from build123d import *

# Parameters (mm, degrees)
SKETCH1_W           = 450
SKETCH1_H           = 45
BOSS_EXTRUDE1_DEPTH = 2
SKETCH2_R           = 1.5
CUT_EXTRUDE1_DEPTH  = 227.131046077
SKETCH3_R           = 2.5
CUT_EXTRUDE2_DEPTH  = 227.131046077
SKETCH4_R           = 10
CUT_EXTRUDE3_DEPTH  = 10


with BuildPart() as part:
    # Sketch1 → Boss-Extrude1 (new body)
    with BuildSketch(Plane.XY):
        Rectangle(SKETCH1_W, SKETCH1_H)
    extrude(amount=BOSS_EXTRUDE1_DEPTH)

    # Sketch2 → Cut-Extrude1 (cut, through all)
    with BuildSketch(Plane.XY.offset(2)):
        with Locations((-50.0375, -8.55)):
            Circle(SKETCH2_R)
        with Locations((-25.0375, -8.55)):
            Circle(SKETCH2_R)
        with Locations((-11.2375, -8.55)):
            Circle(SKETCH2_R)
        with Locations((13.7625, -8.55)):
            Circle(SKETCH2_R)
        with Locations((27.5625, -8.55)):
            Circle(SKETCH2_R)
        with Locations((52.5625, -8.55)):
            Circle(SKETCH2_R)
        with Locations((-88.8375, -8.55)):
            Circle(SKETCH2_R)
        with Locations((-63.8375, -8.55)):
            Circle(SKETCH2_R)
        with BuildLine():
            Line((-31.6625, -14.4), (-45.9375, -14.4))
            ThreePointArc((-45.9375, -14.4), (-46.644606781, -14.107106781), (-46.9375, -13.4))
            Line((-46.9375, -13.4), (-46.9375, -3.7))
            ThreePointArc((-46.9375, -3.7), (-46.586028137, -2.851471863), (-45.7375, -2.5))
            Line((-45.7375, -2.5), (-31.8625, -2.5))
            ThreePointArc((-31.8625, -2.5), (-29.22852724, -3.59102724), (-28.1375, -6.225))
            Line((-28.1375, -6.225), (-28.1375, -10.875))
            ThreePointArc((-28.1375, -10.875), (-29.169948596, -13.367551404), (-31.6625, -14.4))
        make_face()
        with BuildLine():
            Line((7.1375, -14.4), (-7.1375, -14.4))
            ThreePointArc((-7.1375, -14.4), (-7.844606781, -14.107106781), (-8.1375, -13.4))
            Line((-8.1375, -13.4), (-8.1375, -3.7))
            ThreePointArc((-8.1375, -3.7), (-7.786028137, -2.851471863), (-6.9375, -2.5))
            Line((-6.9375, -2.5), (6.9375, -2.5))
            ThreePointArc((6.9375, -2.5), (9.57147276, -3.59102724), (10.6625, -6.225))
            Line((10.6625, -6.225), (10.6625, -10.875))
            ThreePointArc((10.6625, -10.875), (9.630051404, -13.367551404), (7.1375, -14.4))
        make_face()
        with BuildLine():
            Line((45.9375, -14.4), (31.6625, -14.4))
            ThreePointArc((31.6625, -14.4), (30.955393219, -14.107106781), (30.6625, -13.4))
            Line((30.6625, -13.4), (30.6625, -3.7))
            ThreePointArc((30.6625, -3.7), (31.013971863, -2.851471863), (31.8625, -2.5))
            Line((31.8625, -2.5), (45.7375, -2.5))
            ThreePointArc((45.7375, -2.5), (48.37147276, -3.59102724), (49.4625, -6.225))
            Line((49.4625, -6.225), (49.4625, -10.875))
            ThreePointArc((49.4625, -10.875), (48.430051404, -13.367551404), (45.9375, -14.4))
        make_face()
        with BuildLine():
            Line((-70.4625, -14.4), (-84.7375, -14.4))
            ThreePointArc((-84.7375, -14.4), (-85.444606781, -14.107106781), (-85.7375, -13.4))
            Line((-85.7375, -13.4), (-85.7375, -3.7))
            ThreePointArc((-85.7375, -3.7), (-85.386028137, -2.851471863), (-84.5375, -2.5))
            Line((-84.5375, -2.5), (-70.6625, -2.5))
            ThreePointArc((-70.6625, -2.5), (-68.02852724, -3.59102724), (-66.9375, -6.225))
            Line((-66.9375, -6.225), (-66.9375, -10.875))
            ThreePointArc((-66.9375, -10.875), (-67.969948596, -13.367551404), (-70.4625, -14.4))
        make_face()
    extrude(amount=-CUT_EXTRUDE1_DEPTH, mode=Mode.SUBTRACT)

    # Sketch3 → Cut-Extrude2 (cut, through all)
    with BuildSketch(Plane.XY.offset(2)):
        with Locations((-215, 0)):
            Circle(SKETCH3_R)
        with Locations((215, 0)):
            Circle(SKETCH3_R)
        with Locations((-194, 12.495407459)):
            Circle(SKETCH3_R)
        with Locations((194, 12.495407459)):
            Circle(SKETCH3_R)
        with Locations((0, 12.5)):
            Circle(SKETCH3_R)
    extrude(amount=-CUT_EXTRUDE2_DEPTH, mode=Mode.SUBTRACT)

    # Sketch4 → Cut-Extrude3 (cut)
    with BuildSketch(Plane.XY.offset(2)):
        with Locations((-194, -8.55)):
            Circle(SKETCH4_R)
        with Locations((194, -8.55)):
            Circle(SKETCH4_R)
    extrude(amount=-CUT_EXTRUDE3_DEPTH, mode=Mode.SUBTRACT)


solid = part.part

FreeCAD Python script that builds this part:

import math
import FreeCAD as App
import Part
import Sketcher
from FreeCAD import Vector
Q = App.Units.Quantity


def add_polygon(sketch, points):
    """Adds a closed chain of lines whose ends are joined by coincident constraints."""
    first, n = sketch.GeometryCount, len(points)
    for a, b in zip(points, points[1:] + points[:1]):
        sketch.addGeometry(Part.LineSegment(App.Vector(*a, 0), App.Vector(*b, 0)), False)
    for i in range(n):
        sketch.addConstraint(Sketcher.Constraint("Coincident", first + i, 2, first + (i + 1) % n, 1))

doc = App.newDocument("Part")
body = doc.addObject("PartDesign::Body", "Body")

# Sketch on XY plane
sketch1 = body.newObject("Sketcher::SketchObject", "Sketch")
sketch1.AttachmentSupport = (doc.getObject("XY_Plane"), [""])
sketch1.MapMode = "FlatFace"
add_polygon(sketch1, [(-225, 22), (-225, -22), (225, -22), (225, 22)])  # lines 0-3
sketch1.addConstraint([
    Sketcher.Constraint("Vertical", 0),
    Sketcher.Constraint("Horizontal", 1),
    Sketcher.Constraint("Vertical", 2),
    Sketcher.Constraint("Horizontal", 3),
    Sketcher.Constraint("Symmetric", 0, 2, 2, 2, -1, 1),
    Sketcher.Constraint("DistanceX", 1, 1, 1, 2, Q("450 mm")),
    Sketcher.Constraint("DistanceY", 0, 2, 0, 1, Q("45 mm")),
])
pad1 = body.newObject("PartDesign::Pad", "Pad")
pad1.Profile = sketch1
pad1.Length = 2

# Sketch on XY plane
sketch2 = body.newObject("Sketcher::SketchObject", "Sketch001")
sketch2.AttachmentSupport = (doc.getObject("XY_Plane"), [""])
sketch2.MapMode = "FlatFace"
sketch2.AttachmentOffset = App.Placement(Vector(0, 0, 2), App.Rotation())
sketch2.addGeometry([
    Part.Circle(Vector(-50, -8.6, 0), Vector(0, 0, 1), 1.5),  # 0
    Part.Circle(Vector(-25, -8.6, 0), Vector(0, 0, 1), 1.5),  # 1
    Part.Circle(Vector(-11.2, -8.6, 0), Vector(0, 0, 1), 1.5),  # 2
    Part.Circle(Vector(13.8, -8.6, 0), Vector(0, 0, 1), 1.5),  # 3
    Part.Circle(Vector(27.6, -8.6, 0), Vector(0, 0, 1), 1.5),  # 4
    Part.Circle(Vector(52.6, -8.6, 0), Vector(0, 0, 1), 1.5),  # 5
    Part.Circle(Vector(-88.8, -8.6, 0), Vector(0, 0, 1), 1.5),  # 6
    Part.Circle(Vector(-63.8, -8.6, 0), Vector(0, 0, 1), 1.5),  # 7
    Part.LineSegment(Vector(-45.9, -14.4, 0), Vector(-31.7, -14.4, 0)),  # 8
    Part.ArcOfCircle(Part.Circle(Vector(-31.7, -10.9, 0), Vector(0, 0, 1), 3.5), math.radians(-90), math.radians(0)),  # 9
    Part.LineSegment(Vector(-28.1, -10.9, 0), Vector(-28.1, -6.2, 0)),  # 10
    Part.ArcOfCircle(Part.Circle(Vector(-31.9, -6.2, 0), Vector(0, 0, 1), 3.7), math.radians(0), math.radians(90)),  # 11
    Part.LineSegment(Vector(-31.9, -2.5, 0), Vector(-45.7, -2.5, 0)),  # 12
    Part.ArcOfCircle(Part.Circle(Vector(-45.7, -3.7, 0), Vector(0, 0, 1), 1.2), math.radians(90), math.radians(180)),  # 13
    Part.LineSegment(Vector(-46.9, -3.7, 0), Vector(-46.9, -13.4, 0)),  # 14
    Part.ArcOfCircle(Part.Circle(Vector(-45.9, -13.4, 0), Vector(0, 0, 1), 1), math.radians(-180), math.radians(-90)),  # 15
    Part.LineSegment(Vector(-7.1, -14.4, 0), Vector(7.1, -14.4, 0)),  # 16
    Part.ArcOfCircle(Part.Circle(Vector(7.1, -10.9, 0), Vector(0, 0, 1), 3.5), math.radians(-90), math.radians(0)),  # 17
    Part.LineSegment(Vector(10.7, -10.9, 0), Vector(10.7, -6.2, 0)),  # 18
    Part.ArcOfCircle(Part.Circle(Vector(6.9, -6.2, 0), Vector(0, 0, 1), 3.7), math.radians(0), math.radians(90)),  # 19
    Part.LineSegment(Vector(6.9, -2.5, 0), Vector(-6.9, -2.5, 0)),  # 20
    Part.ArcOfCircle(Part.Circle(Vector(-6.9, -3.7, 0), Vector(0, 0, 1), 1.2), math.radians(90), math.radians(180)),  # 21
    Part.LineSegment(Vector(-8.1, -3.7, 0), Vector(-8.1, -13.4, 0)),  # 22
    Part.ArcOfCircle(Part.Circle(Vector(-7.1, -13.4, 0), Vector(0, 0, 1), 1), math.radians(-180), math.radians(-90)),  # 23
    Part.LineSegment(Vector(31.7, -14.4, 0), Vector(45.9, -14.4, 0)),  # 24
    Part.ArcOfCircle(Part.Circle(Vector(45.9, -10.9, 0), Vector(0, 0, 1), 3.5), math.radians(-90), math.radians(0)),  # 25
    Part.LineSegment(Vector(49.5, -10.9, 0), Vector(49.5, -6.2, 0)),  # 26
    Part.ArcOfCircle(Part.Circle(Vector(45.7, -6.2, 0), Vector(0, 0, 1), 3.7), math.radians(0), math.radians(90)),  # 27
    Part.LineSegment(Vector(45.7, -2.5, 0), Vector(31.9, -2.5, 0)),  # 28
    Part.ArcOfCircle(Part.Circle(Vector(31.9, -3.7, 0), Vector(0, 0, 1), 1.2), math.radians(90), math.radians(180)),  # 29
    Part.LineSegment(Vector(30.7, -3.7, 0), Vector(30.7, -13.4, 0)),  # 30
    Part.ArcOfCircle(Part.Circle(Vector(31.7, -13.4, 0), Vector(0, 0, 1), 1), math.radians(-180), math.radians(-90)),  # 31
    Part.LineSegment(Vector(-84.7, -14.4, 0), Vector(-70.5, -14.4, 0)),  # 32
    Part.ArcOfCircle(Part.Circle(Vector(-70.5, -10.9, 0), Vector(0, 0, 1), 3.5), math.radians(-90), math.radians(0)),  # 33
    Part.LineSegment(Vector(-66.9, -10.9, 0), Vector(-66.9, -6.2, 0)),  # 34
    Part.ArcOfCircle(Part.Circle(Vector(-70.7, -6.2, 0), Vector(0, 0, 1), 3.7), math.radians(0), math.radians(90)),  # 35
    Part.LineSegment(Vector(-70.7, -2.5, 0), Vector(-84.5, -2.5, 0)),  # 36
    Part.ArcOfCircle(Part.Circle(Vector(-84.5, -3.7, 0), Vector(0, 0, 1), 1.2), math.radians(90), math.radians(180)),  # 37
    Part.LineSegment(Vector(-85.7, -3.7, 0), Vector(-85.7, -13.4, 0)),  # 38
    Part.ArcOfCircle(Part.Circle(Vector(-84.7, -13.4, 0), Vector(0, 0, 1), 1), math.radians(-180), math.radians(-90)),  # 39
], False)
sketch2.addConstraint([
    Sketcher.Constraint("Tangent", 8, 2, 9, 1),
    Sketcher.Constraint("Tangent", 9, 2, 10, 1),
    Sketcher.Constraint("Tangent", 10, 2, 11, 1),
    Sketcher.Constraint("Tangent", 11, 2, 12, 1),
    Sketcher.Constraint("Tangent", 12, 2, 13, 1),
    Sketcher.Constraint("Tangent", 13, 2, 14, 1),
    Sketcher.Constraint("Tangent", 14, 2, 15, 1),
    Sketcher.Constraint("Tangent", 15, 2, 8, 1),
    Sketcher.Constraint("Tangent", 16, 2, 17, 1),
    Sketcher.Constraint("Tangent", 17, 2, 18, 1),
    Sketcher.Constraint("Tangent", 18, 2, 19, 1),
    Sketcher.Constraint("Tangent", 19, 2, 20, 1),
    Sketcher.Constraint("Tangent", 20, 2, 21, 1),
    Sketcher.Constraint("Tangent", 21, 2, 22, 1),
    Sketcher.Constraint("Tangent", 22, 2, 23, 1),
    Sketcher.Constraint("Tangent", 23, 2, 16, 1),
    Sketcher.Constraint("Tangent", 24, 2, 25, 1),
    Sketcher.Constraint("Tangent", 25, 2, 26, 1),
    Sketcher.Constraint("Tangent", 26, 2, 27, 1),
    Sketcher.Constraint("Tangent", 27, 2, 28, 1),
    Sketcher.Constraint("Tangent", 28, 2, 29, 1),
    Sketcher.Constraint("Tangent", 29, 2, 30, 1),
    Sketcher.Constraint("Tangent", 30, 2, 31, 1),
    Sketcher.Constraint("Tangent", 31, 2, 24, 1),
    Sketcher.Constraint("Tangent", 32, 2, 33, 1),
    Sketcher.Constraint("Tangent", 33, 2, 34, 1),
    Sketcher.Constraint("Tangent", 34, 2, 35, 1),
    Sketcher.Constraint("Tangent", 35, 2, 36, 1),
    Sketcher.Constraint("Tangent", 36, 2, 37, 1),
    Sketcher.Constraint("Tangent", 37, 2, 38, 1),
    Sketcher.Constraint("Tangent", 38, 2, 39, 1),
    Sketcher.Constraint("Tangent", 39, 2, 32, 1),
    Sketcher.Constraint("Horizontal", 8),
    Sketcher.Constraint("Vertical", 10),
    Sketcher.Constraint("Horizontal", 12),
    Sketcher.Constraint("Vertical", 14),
    Sketcher.Constraint("Horizontal", 16),
    Sketcher.Constraint("Vertical", 18),
    Sketcher.Constraint("Horizontal", 20),
    Sketcher.Constraint("Vertical", 22),
    Sketcher.Constraint("Horizontal", 24),
    Sketcher.Constraint("Vertical", 26),
    Sketcher.Constraint("Horizontal", 28),
    Sketcher.Constraint("Vertical", 30),
    Sketcher.Constraint("Horizontal", 32),
    Sketcher.Constraint("Vertical", 34),
    Sketcher.Constraint("Horizontal", 36),
    Sketcher.Constraint("Vertical", 38),
    Sketcher.Constraint("Equal", 0, 1),
    Sketcher.Constraint("Equal", 1, 2),
    Sketcher.Constraint("Equal", 2, 3),
    Sketcher.Constraint("Equal", 3, 4),
    Sketcher.Constraint("Equal", 4, 5),
    Sketcher.Constraint("Equal", 5, 6),
    Sketcher.Constraint("Equal", 6, 7),
    Sketcher.Constraint("Equal", 9, 17),
    Sketcher.Constraint("Equal", 11, 19),
    Sketcher.Constraint("Equal", 13, 21),
    Sketcher.Constraint("Equal", 15, 23),
    Sketcher.Constraint("Equal", 17, 25),
    Sketcher.Constraint("Equal", 19, 27),
    Sketcher.Constraint("Equal", 21, 29),
    Sketcher.Constraint("Equal", 23, 31),
    Sketcher.Constraint("Equal", 25, 33),
    Sketcher.Constraint("Equal", 27, 35),
    Sketcher.Constraint("Equal", 29, 37),
    Sketcher.Constraint("Equal", 31, 39),
    Sketcher.Constraint("Symmetric", 15, 2, 24, 2, -2),
    Sketcher.Constraint("Symmetric", 12, 2, 27, 2, -2),
    Sketcher.Constraint("Horizontal", 0, 3, 1, 3),
    Sketcher.Constraint("Horizontal", 1, 3, 2, 3),
    Sketcher.Constraint("Horizontal", 2, 3, 3, 3),
    Sketcher.Constraint("Horizontal", 3, 3, 4, 3),
    Sketcher.Constraint("Horizontal", 4, 3, 5, 3),
    Sketcher.Constraint("Horizontal", 5, 3, 6, 3),
    Sketcher.Constraint("Horizontal", 6, 3, 7, 3),
    Sketcher.Constraint("Horizontal", 9, 3, 17, 3),
    Sketcher.Constraint("Horizontal", 11, 3, 19, 3),
    Sketcher.Constraint("Horizontal", 25, 3, 33, 3),
    Sketcher.Constraint("Horizontal", 27, 3, 35, 3),
    Sketcher.Constraint("Equal", 8, 16),
    Sketcher.Constraint("Equal", 16, 24),
    Sketcher.Constraint("Equal", 24, 32),
    Sketcher.Constraint("Diameter", 0, Q("3 mm")),
    Sketcher.Constraint("Radius", 15, Q("1 mm")),
    Sketcher.Constraint("Radius", 13, Q("1.2 mm")),
    Sketcher.Constraint("DistanceY", 14, 2, 14, 1, Q("9.7 mm")),
    Sketcher.Constraint("Radius", 9, Q("3.525 mm")),
    Sketcher.Constraint("DistanceX", 0, 3, 1, 3, Q("25 mm")),
    Sketcher.Constraint("DistanceX", 2, 3, 3, 3, Q("25 mm")),
    Sketcher.Constraint("DistanceX", 4, 3, 5, 3, Q("25 mm")),
    Sketcher.Constraint("DistanceX", 6, 3, 7, 3, Q("25 mm")),
    Sketcher.Constraint("DistanceX", 19, 3, 25, 3, Q("39 mm")),
    Sketcher.Constraint("DistanceY", 13, 3, -1, 1, Q("3.7 mm")),
    Sketcher.Constraint("DistanceX", 1, 3, 2, 3, Q("13.8 mm")),
    Sketcher.Constraint("DistanceX", 3, 3, 4, 3, Q("13.8 mm")),
    Sketcher.Constraint("DistanceX", 6, 3, 0, 3, Q("38.8 mm")),
    Sketcher.Constraint("DistanceX", 0, 3, 13, 3, Q("4.3 mm")),
    Sketcher.Constraint("DistanceX", 9, 3, 17, 3, Q("38.8 mm")),
    Sketcher.Constraint("DistanceX", 6, 3, 37, 3, Q("4.3 mm")),
    Sketcher.Constraint("DistanceX", 9, 2, 1, 3, Q("3.1 mm")),
    Sketcher.Constraint("DistanceY", 0, 3, -1, 1, Q("8.55 mm")),
])
pocket1 = body.newObject("PartDesign::Pocket", "Pocket")
pocket1.Profile = sketch2
pocket1.Type = "ThroughAll"

# Sketch on XY plane
sketch3 = body.newObject("Sketcher::SketchObject", "Sketch002")
sketch3.AttachmentSupport = (doc.getObject("XY_Plane"), [""])
sketch3.MapMode = "FlatFace"
sketch3.AttachmentOffset = App.Placement(Vector(0, 0, 2), App.Rotation())
sketch3.addGeometry([
    Part.Circle(Vector(-215, 0, 0), Vector(0, 0, 1), 2.5),  # 0
    Part.Circle(Vector(215, 0, 0), Vector(0, 0, 1), 2.5),  # 1
    Part.Circle(Vector(-194, 12.5, 0), Vector(0, 0, 1), 2.5),  # 2
    Part.Circle(Vector(194, 12.5, 0), Vector(0, 0, 1), 2.5),  # 3
    Part.Circle(Vector(0, 12.5, 0), Vector(0, 0, 1), 2.5),  # 4
], False)
sketch3.addConstraint([
    Sketcher.Constraint("Equal", 0, 1),
    Sketcher.Constraint("Equal", 1, 2),
    Sketcher.Constraint("Equal", 2, 3),
    Sketcher.Constraint("Equal", 3, 4),
    Sketcher.Constraint("Symmetric", 0, 3, 1, 3, -1, 1),
    Sketcher.Constraint("Symmetric", 2, 3, 3, 3, -2),
    Sketcher.Constraint("PointOnObject", 0, 3, -1),
    Sketcher.Constraint("PointOnObject", 4, 3, -2),
    Sketcher.Constraint("Diameter", 0, Q("5 mm")),
    Sketcher.Constraint("DistanceX", 0, 3, -1, 1, Q("215 mm")),
    Sketcher.Constraint("DistanceX", 2, 3, -1, 1, Q("194 mm")),
    Sketcher.Constraint("DistanceY", -1, 1, 4, 3, Q("12.5 mm")),
    Sketcher.Constraint("DistanceY", -1, 1, 2, 3, Q("12.495407 mm")),
])
pocket2 = body.newObject("PartDesign::Pocket", "Pocket001")
pocket2.Profile = sketch3
pocket2.Type = "ThroughAll"

# Sketch on XY plane
sketch4 = body.newObject("Sketcher::SketchObject", "Sketch003")
sketch4.AttachmentSupport = (doc.getObject("XY_Plane"), [""])
sketch4.MapMode = "FlatFace"
sketch4.AttachmentOffset = App.Placement(Vector(0, 0, 2), App.Rotation())
sketch4.addGeometry([
    Part.Circle(Vector(-194, -9, 0), Vector(0, 0, 1), 10),
    Part.Circle(Vector(194, -9, 0), Vector(0, 0, 1), 10),
], False)
sketch4.addConstraint([
    Sketcher.Constraint("Equal", 0, 1),
    Sketcher.Constraint("Symmetric", 0, 3, 1, 3, -2),
    Sketcher.Constraint("Diameter", 0, Q("20 mm")),
    Sketcher.Constraint("DistanceX", 0, 3, -1, 1, Q("194 mm")),
    Sketcher.Constraint("DistanceY", 0, 3, -1, 1, Q("8.55 mm")),
])
pocket3 = body.newObject("PartDesign::Pocket", "Pocket002")
pocket3.Profile = sketch4
pocket3.Length = 10

doc.recompute()
